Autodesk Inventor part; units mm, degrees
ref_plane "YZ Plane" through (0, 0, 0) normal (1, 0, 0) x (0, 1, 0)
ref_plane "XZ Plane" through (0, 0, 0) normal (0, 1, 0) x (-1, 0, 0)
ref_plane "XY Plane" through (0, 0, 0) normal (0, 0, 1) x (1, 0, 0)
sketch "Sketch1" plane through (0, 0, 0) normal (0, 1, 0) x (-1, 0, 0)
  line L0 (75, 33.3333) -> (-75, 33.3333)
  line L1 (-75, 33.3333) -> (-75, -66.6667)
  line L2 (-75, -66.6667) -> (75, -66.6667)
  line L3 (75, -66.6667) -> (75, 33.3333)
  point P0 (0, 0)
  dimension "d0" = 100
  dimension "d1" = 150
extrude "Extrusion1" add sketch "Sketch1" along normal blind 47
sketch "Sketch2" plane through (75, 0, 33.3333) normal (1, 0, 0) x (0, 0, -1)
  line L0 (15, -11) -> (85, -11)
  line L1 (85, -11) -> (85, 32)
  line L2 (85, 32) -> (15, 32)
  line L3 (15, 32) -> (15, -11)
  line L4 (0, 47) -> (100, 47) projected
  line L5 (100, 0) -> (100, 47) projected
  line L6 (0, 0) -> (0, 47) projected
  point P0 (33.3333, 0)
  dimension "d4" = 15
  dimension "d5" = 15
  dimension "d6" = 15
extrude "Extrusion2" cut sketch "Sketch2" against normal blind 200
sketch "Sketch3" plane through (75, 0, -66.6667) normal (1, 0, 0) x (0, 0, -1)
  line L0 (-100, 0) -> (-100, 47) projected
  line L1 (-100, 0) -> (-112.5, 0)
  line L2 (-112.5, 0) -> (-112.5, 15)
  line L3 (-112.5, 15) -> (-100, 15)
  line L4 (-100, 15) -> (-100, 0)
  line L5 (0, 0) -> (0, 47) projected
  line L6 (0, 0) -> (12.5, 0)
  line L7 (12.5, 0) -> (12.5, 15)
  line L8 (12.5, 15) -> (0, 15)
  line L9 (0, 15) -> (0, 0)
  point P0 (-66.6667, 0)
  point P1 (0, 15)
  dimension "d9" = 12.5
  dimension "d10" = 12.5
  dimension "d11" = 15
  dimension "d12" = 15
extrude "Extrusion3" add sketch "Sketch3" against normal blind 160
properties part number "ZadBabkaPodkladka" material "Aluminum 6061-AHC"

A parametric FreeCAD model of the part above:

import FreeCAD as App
import Part
import Sketcher
from FreeCAD import Vector
Q = App.Units.Quantity


def add_polygon(sketch, points):
    """Adds a closed chain of lines whose ends are joined by coincident constraints."""
    first, n = sketch.GeometryCount, len(points)
    for a, b in zip(points, points[1:] + points[:1]):
        sketch.addGeometry(Part.LineSegment(App.Vector(*a, 0), App.Vector(*b, 0)), False)
    for i in range(n):
        sketch.addConstraint(Sketcher.Constraint("Coincident", first + i, 2, first + (i + 1) % n, 1))

doc = App.newDocument("Part")
params = doc.addObject("Spreadsheet::Sheet", "Params")
for row, (alias, value) in enumerate([
    ("sketch1_width", "150 mm"),
    ("sketch1_height", "100 mm"),
    ("pad1_length", "47 mm"),
    ("sketch2_width", "43 mm"),
    ("sketch2_height", "70 mm"),
    ("pocket1_length", "200 mm"),
    ("sketch3_width", "15 mm"),
    ("sketch3_height", "12.5 mm"),
    ("pad2_length", "160 mm"),
], start=1):
    params.set(f"A{row}", alias)
    params.set(f"B{row}", "=" + value)
    params.setAlias(f"B{row}", alias)

body = doc.addObject("PartDesign::Body", "Body")

# Sketch on XZ plane
sketch1 = body.newObject("Sketcher::SketchObject", "Sketch")
sketch1.AttachmentSupport = (doc.getObject("XZ_Plane"), [""])
sketch1.MapMode = "FlatFace"
add_polygon(sketch1, [(-75, -67), (-75, 33), (75, 33), (75, -67)])  # lines 0-3
sketch1.addConstraint(Sketcher.Constraint("Vertical", 0))
sketch1.addConstraint(Sketcher.Constraint("Horizontal", 1))
sketch1.addConstraint(Sketcher.Constraint("Vertical", 2))
sketch1.addConstraint(Sketcher.Constraint("Horizontal", 3))
sketch1.addConstraint(Sketcher.Constraint("DistanceX", 1, 1, 1, 2, Q("150 mm")))
sketch1.addConstraint(Sketcher.Constraint("DistanceY", 0, 1, 0, 2, Q("100 mm")))
sketch1.addConstraint(Sketcher.Constraint("DistanceX", 0, 2, -1, 1, Q("75 mm")))
sketch1.addConstraint(Sketcher.Constraint("DistanceY", -1, 1, 0, 2, Q("33.3333 mm")))
sketch1.setExpression("Constraints[8]", "Params.sketch1_width")
sketch1.setExpression("Constraints[9]", "Params.sketch1_height")
pad1 = body.newObject("PartDesign::Pad", "Pad")
pad1.Profile = sketch1
pad1.setExpression("Length", "Params.pad1_length")
pad1.Reversed = True

# Sketch on YZ plane
sketch2 = body.newObject("Sketcher::SketchObject", "Sketch001")
sketch2.AttachmentSupport = (doc.getObject("YZ_Plane"), [""])
sketch2.MapMode = "FlatFace"
sketch2.AttachmentOffset = App.Placement(Vector(0, 0, 75), App.Rotation())
add_polygon(sketch2, [(32, 18), (-11, 18), (-11, -52), (32, -52)])  # lines 0-3
sketch2.addConstraint(Sketcher.Constraint("Horizontal", 0))
sketch2.addConstraint(Sketcher.Constraint("Vertical", 1))
sketch2.addConstraint(Sketcher.Constraint("Horizontal", 2))
sketch2.addConstraint(Sketcher.Constraint("Vertical", 3))
sketch2.addConstraint(Sketcher.Constraint("DistanceX", 0, 2, 0, 1, Q("43 mm")))
sketch2.addConstraint(Sketcher.Constraint("DistanceY", 1, 2, 1, 1, Q("70 mm")))
sketch2.addConstraint(Sketcher.Constraint("DistanceX", 0, 2, -1, 1, Q("11 mm")))
sketch2.addConstraint(Sketcher.Constraint("DistanceY", -1, 1, 0, 2, Q("18.3333 mm")))
sketch2.setExpression("Constraints[8]", "Params.sketch2_width")
sketch2.setExpression("Constraints[9]", "Params.sketch2_height")
pocket1 = body.newObject("PartDesign::Pocket", "Pocket")
pocket1.Profile = sketch2
pocket1.setExpression("Length", "Params.pocket1_length")

# Sketch on YZ plane
sketch3 = body.newObject("Sketcher::SketchObject", "Sketch002")
sketch3.AttachmentSupport = (doc.getObject("YZ_Plane"), [""])
sketch3.MapMode = "FlatFace"
sketch3.AttachmentOffset = App.Placement(Vector(0, 0, 75), App.Rotation())
add_polygon(sketch3, [(0, 46), (0, 33), (15, 33), (15, 46)])  # lines 0-3
add_polygon(sketch3, [(15, -67), (0, -67), (0, -79), (15, -79)])  # lines 4-7
sketch3.addConstraint(Sketcher.Constraint("Vertical", 0))
sketch3.addConstraint(Sketcher.Constraint("Horizontal", 1))
sketch3.addConstraint(Sketcher.Constraint("Vertical", 2))
sketch3.addConstraint(Sketcher.Constraint("Horizontal", 3))
sketch3.addConstraint(Sketcher.Constraint("Horizontal", 4))
sketch3.addConstraint(Sketcher.Constraint("Vertical", 5))
sketch3.addConstraint(Sketcher.Constraint("Horizontal", 6))
sketch3.addConstraint(Sketcher.Constraint("Vertical", 7))
sketch3.addConstraint(Sketcher.Constraint("PointOnObject", 0, 2, -2))
sketch3.addConstraint(Sketcher.Constraint("PointOnObject", 4, 2, -2))
sketch3.addConstraint(Sketcher.Constraint("Vertical", 2, 2, 6, 2))
sketch3.addConstraint(Sketcher.Constraint("Equal", 2, 5))
sketch3.addConstraint(Sketcher.Constraint("DistanceX", 1, 1, 1, 2, Q("15 mm")))
sketch3.addConstraint(Sketcher.Constraint("DistanceY", 0, 2, 0, 1, Q("12.5 mm")))
sketch3.addConstraint(Sketcher.Constraint("DistanceY", 4, 2, 0, 2, Q("100 mm")))
sketch3.addConstraint(Sketcher.Constraint("DistanceY", -1, 1, 0, 2, Q("33.3333 mm")))
sketch3.setExpression("Constraints[20]", "Params.sketch3_width")
sketch3.setExpression("Constraints[21]", "Params.sketch3_height")
pad2 = body.newObject("PartDesign::Pad", "Pad001")
pad2.Profile = sketch3
pad2.setExpression("Length", "Params.pad2_length")
pad2.Reversed = True

doc.recompute()
